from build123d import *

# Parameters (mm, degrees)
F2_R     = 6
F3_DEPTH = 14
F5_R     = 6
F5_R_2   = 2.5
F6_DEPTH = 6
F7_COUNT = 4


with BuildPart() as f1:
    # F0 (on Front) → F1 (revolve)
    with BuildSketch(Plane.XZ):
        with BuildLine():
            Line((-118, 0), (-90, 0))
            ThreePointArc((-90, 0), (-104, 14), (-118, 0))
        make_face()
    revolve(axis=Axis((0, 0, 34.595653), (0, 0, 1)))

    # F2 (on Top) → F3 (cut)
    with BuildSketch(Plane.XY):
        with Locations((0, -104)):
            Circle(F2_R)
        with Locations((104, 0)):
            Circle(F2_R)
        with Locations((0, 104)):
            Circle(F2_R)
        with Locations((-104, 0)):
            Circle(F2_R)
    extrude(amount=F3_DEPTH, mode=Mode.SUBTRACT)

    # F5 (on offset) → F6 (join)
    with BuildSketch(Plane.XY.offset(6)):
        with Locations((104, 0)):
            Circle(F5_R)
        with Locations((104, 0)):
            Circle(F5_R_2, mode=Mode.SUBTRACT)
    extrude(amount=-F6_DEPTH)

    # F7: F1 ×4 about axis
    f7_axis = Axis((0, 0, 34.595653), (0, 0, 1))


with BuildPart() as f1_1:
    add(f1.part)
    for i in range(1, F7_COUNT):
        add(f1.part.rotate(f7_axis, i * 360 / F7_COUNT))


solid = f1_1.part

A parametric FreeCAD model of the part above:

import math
import FreeCAD as App
import Part
import Sketcher

V = App.Vector
Q = App.Units.Quantity

doc = App.newDocument("Part")
body = doc.addObject("PartDesign::Body", "Body")

sketch1 = body.newObject("Sketcher::SketchObject", "Sketch")
sketch1.AttachmentSupport = (doc.getObject("XZ_Plane"), [""])
sketch1.MapMode = "FlatFace"
sketch1.addGeometry([
    Part.LineSegment(V(-118, 0, 0), V(-90, 0, 0)),
    Part.ArcOfCircle(Part.Circle(V(-104, 0, 0), V(0, 0, 1), 14), math.radians(0), math.radians(180)),
], False)
sketch1.addConstraint([
    Sketcher.Constraint("Coincident", 0, 1, 1, 2),
    Sketcher.Constraint("Coincident", 1, 1, 0, 2),
    Sketcher.Constraint("Horizontal", 0),
    Sketcher.Constraint("PointOnObject", 1, 3, -1),
    Sketcher.Constraint("PointOnObject", 0, 1, -1),
    Sketcher.Constraint("Radius", 1, Q("14 mm")),
    Sketcher.Constraint("DistanceX", 1, 3, -1, 1, Q("104 mm")),
])
revolution = body.newObject("PartDesign::Revolution", "Revolution")
revolution.Profile = sketch1
revolution.ReferenceAxis = (sketch1, ["V_Axis"])
revolution.Angle = 360

sketch2 = body.newObject("Sketcher::SketchObject", "Sketch001")
sketch2.AttachmentSupport = (doc.getObject("XY_Plane"), [""])
sketch2.MapMode = "FlatFace"
sketch2.addGeometry([
    Part.Circle(V(0, -104, 0), V(0, 0, 1), 6),
    Part.Circle(V(104, 0, 0), V(0, 0, 1), 6),
    Part.Circle(V(0, 104, 0), V(0, 0, 1), 6),
    Part.Circle(V(-104, 0, 0), V(0, 0, 1), 6),
], False)
sketch2.addConstraint([
    Sketcher.Constraint("Equal", 0, 1),
    Sketcher.Constraint("Equal", 1, 2),
    Sketcher.Constraint("Equal", 2, 3),
    Sketcher.Constraint("Symmetric", 0, 3, 2, 3, -1, 1),
    Sketcher.Constraint("Symmetric", 1, 3, 3, 3, -1, 1),
    Sketcher.Constraint("PointOnObject", 0, 3, -2),
    Sketcher.Constraint("PointOnObject", 1, 3, -1),
    Sketcher.Constraint("Diameter", 0, Q("12 mm")),
    Sketcher.Constraint("DistanceY", 0, 3, -1, 1, Q("104 mm")),
    Sketcher.Constraint("DistanceX", -1, 1, 1, 3, Q("104 mm")),
])
pocket1 = body.newObject("PartDesign::Pocket", "Pocket")
pocket1.Profile = sketch2
pocket1.Length = 14
pocket1.Reversed = True

sketch3 = body.newObject("Sketcher::SketchObject", "Sketch002")
sketch3.AttachmentSupport = (doc.getObject("XY_Plane"), [""])
sketch3.MapMode = "FlatFace"
sketch3.AttachmentOffset = App.Placement(V(0, 0, 6), App.Rotation())
sketch3.addGeometry([
    Part.Circle(V(104, 0, 0), V(0, 0, 1), 6),
    Part.Circle(V(104, 0, 0), V(0, 0, 1), 2.5),
], False)
sketch3.addConstraint([
    Sketcher.Constraint("Coincident", 1, 3, 0, 3),
    Sketcher.Constraint("PointOnObject", 0, 3, -1),
    Sketcher.Constraint("Diameter", 0, Q("12 mm")),
    Sketcher.Constraint("Diameter", 1, Q("5 mm")),
    Sketcher.Constraint("DistanceX", -1, 1, 0, 3, Q("104 mm")),
])
pad1 = body.newObject("PartDesign::Pad", "Pad")
pad1.Profile = sketch3
pad1.Length = 6
pad1.Reversed = True
body2 = doc.addObject("PartDesign::Body", "Body001")
doc.recompute()

body2.BaseFeature = body
doc.recompute()

body3 = doc.addObject("PartDesign::Body", "Body002")
body3.BaseFeature = body
body3.Placement = App.Placement(V(0, 0, 0), App.Rotation(V(0, 0, 1), 90))
boolean = body2.newObject("PartDesign::Boolean", "Boolean")
boolean.Type = "Fuse"
boolean.addObjects([body3])
doc.recompute()

body4 = doc.addObject("PartDesign::Body", "Body003")
body4.BaseFeature = body
body4.Placement = App.Placement(V(0, 0, 0), App.Rotation(V(0, 0, 1), 180))
boolean2 = body2.newObject("PartDesign::Boolean", "Boolean001")
boolean2.Type = "Fuse"
boolean2.addObjects([body4])
doc.recompute()

body.Placement = App.Placement(V(0, 0, 0), App.Rotation(V(0, 0, 1), 270))
boolean3 = body2.newObject("PartDesign::Boolean", "Boolean002")
boolean3.Type = "Fuse"
boolean3.addObjects([body])

doc.recompute()
